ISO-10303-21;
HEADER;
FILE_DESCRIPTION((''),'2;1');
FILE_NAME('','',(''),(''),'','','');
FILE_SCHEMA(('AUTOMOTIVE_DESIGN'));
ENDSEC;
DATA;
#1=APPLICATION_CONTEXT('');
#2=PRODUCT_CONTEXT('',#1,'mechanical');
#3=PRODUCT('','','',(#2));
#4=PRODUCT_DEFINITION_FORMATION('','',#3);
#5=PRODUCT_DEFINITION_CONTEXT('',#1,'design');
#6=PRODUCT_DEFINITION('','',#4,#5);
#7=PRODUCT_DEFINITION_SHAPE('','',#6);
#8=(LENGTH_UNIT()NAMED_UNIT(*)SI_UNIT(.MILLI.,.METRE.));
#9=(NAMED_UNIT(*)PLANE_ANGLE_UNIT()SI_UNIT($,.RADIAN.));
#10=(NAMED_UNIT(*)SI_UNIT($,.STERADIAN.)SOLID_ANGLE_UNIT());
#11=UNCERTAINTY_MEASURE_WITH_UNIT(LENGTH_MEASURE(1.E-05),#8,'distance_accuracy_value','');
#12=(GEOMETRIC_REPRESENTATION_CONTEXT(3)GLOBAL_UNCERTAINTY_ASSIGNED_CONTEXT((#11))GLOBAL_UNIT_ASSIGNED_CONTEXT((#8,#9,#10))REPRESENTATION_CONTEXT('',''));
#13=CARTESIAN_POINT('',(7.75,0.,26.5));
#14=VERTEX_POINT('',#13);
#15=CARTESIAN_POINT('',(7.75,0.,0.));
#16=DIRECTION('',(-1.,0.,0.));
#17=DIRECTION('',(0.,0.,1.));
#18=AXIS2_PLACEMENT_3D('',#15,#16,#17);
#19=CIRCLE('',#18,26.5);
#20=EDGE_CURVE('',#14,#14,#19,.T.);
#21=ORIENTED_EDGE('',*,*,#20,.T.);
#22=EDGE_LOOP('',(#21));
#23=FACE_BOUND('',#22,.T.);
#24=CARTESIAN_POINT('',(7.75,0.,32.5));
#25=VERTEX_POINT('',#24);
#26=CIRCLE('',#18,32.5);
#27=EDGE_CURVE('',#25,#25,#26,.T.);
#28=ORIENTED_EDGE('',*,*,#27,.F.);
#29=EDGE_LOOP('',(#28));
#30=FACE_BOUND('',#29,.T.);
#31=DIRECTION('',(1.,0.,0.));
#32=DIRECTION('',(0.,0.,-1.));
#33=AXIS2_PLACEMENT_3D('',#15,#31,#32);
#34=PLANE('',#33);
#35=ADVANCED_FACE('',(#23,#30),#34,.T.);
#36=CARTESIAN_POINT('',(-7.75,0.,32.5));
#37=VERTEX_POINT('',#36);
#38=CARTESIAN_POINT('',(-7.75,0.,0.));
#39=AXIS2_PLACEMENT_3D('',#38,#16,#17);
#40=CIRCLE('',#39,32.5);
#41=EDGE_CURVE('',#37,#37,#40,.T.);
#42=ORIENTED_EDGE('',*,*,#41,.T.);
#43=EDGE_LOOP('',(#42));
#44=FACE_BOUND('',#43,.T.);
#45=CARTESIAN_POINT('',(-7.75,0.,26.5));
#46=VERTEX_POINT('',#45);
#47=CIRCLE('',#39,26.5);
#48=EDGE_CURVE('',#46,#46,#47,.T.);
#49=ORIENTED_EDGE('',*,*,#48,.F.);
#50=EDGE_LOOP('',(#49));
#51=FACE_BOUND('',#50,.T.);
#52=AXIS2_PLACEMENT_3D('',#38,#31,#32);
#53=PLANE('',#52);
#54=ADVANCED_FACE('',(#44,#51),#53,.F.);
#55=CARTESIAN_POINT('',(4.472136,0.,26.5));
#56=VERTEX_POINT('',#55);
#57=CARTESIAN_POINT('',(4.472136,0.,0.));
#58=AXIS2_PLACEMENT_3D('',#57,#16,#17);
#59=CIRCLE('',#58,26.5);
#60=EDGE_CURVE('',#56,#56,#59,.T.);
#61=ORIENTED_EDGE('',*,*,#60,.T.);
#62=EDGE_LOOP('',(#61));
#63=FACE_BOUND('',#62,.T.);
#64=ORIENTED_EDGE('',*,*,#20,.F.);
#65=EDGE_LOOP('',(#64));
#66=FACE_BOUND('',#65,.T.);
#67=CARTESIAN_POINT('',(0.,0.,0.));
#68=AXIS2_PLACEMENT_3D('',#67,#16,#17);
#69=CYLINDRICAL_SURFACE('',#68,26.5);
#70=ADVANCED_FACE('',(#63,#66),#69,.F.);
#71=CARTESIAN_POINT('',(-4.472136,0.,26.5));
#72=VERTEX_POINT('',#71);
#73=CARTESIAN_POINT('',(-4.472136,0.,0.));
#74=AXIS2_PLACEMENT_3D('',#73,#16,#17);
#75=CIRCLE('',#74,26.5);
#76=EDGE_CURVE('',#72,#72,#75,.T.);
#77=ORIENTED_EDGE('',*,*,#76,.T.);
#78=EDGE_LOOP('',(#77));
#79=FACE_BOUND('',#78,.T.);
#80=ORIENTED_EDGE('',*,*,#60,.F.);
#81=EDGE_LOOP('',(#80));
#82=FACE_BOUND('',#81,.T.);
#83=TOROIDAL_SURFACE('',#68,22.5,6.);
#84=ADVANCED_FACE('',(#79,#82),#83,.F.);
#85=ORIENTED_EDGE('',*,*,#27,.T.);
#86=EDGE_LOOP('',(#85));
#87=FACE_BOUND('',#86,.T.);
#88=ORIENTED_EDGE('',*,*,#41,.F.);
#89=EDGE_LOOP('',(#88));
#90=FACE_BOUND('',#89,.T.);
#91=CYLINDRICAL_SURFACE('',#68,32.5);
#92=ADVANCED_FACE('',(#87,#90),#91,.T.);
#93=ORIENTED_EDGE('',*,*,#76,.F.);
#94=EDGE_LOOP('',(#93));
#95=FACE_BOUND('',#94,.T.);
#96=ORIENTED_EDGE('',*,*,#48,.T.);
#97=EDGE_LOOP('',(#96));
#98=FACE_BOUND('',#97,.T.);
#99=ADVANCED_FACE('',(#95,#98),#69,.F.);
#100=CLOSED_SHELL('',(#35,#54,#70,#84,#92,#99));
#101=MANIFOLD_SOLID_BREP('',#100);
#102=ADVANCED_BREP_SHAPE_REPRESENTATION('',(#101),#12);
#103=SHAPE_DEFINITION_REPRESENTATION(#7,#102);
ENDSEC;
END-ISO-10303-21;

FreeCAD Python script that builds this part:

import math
import FreeCAD as App
import Part
import Sketcher
from FreeCAD import Vector
Q = App.Units.Quantity

doc = App.newDocument("Part")
body = doc.addObject("PartDesign::Body", "Body")

# Sketch on XY plane
sketch1 = doc.addObject("Sketcher::SketchObject", "Sketch")
body.addObject(sketch1)
sketch1.AttachmentSupport = (doc.XY_Plane, [""])
sketch1.MapMode = "FlatFace"
sketch1.addGeometry([
    Part.ArcOfCircle(Part.Circle(Vector(0, 22.5, 0), Vector(0, 0, 1), 6), math.radians(42), math.radians(138)),  # 0
    Part.LineSegment(Vector(4.5, 26.5, 0), Vector(7.8, 26.5, 0)),  # 1
    Part.LineSegment(Vector(7.8, 26.5, 0), Vector(7.8, 32.5, 0)),  # 2
    Part.LineSegment(Vector(7.8, 32.5, 0), Vector(-7.8, 32.5, 0)),  # 3
    Part.LineSegment(Vector(-7.8, 32.5, 0), Vector(-7.8, 26.5, 0)),  # 4
    Part.LineSegment(Vector(-7.8, 26.5, 0), Vector(-4.5, 26.5, 0)),  # 5
], False)
sketch1.addConstraint([
    Sketcher.Constraint("Coincident", 0, 1, 1, 1),
    Sketcher.Constraint("Coincident", 1, 2, 2, 1),
    Sketcher.Constraint("Coincident", 2, 2, 3, 1),
    Sketcher.Constraint("Coincident", 3, 2, 4, 1),
    Sketcher.Constraint("Coincident", 4, 2, 5, 1),
    Sketcher.Constraint("Coincident", 5, 2, 0, 2),
    Sketcher.Constraint("Horizontal", 1),
    Sketcher.Constraint("Vertical", 2),
    Sketcher.Constraint("Horizontal", 3),
    Sketcher.Constraint("Vertical", 4),
    Sketcher.Constraint("Horizontal", 5),
    Sketcher.Constraint("Symmetric", 1, 2, 4, 2, -2),
    Sketcher.Constraint("PointOnObject", 0, 3, -2),
    Sketcher.Constraint("Radius", 0, Q("6 mm")),
    Sketcher.Constraint("DistanceY", 2, 1, 2, 2, Q("6 mm")),
    Sketcher.Constraint("DistanceX", 3, 2, 3, 1, Q("15.5 mm")),
    Sketcher.Constraint("DistanceY", 0, 3, 0, 1, Q("4 mm")),
    Sketcher.Constraint("DistanceY", -1, 1, 0, 3, Q("22.5 mm")),
])
revolution = doc.addObject("PartDesign::Revolution", "Revolution")
body.addObject(revolution)
revolution.Profile = sketch1
revolution.ReferenceAxis = (sketch1, ["H_Axis"])
revolution.Angle = 360

doc.recompute()
